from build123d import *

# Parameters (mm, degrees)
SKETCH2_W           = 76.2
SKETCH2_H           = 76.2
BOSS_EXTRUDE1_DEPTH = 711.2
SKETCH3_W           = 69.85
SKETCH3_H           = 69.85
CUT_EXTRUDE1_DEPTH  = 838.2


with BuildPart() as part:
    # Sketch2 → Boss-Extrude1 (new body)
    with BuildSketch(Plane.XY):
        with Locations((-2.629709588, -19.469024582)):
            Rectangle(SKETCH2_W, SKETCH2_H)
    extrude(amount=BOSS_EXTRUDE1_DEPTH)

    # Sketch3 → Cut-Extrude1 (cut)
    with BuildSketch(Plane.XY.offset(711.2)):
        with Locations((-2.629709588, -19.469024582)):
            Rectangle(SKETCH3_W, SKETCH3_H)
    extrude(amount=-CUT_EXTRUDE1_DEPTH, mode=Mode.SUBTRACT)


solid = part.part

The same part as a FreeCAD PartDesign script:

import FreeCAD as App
import Part
import Sketcher
Q = App.Units.Quantity

doc = App.newDocument("Part")
body = doc.addObject("PartDesign::Body", "Body")

# Sketch on XY plane
sketch1 = body.newObject("Sketcher::SketchObject", "Sketch")
sketch1.AttachmentSupport = (doc.getObject("XY_Plane"), [""])
sketch1.MapMode = "FlatFace"
sketch1.addGeometry([
    Part.LineSegment(App.Vector(-40.72971, 18.630975, 0), App.Vector(-40.72971, -57.569025, 0)),
    Part.LineSegment(App.Vector(-40.72971, -57.569025, 0), App.Vector(35.47029, -57.569025, 0)),
    Part.LineSegment(App.Vector(35.47029, -57.569025, 0), App.Vector(35.47029, 18.630975, 0)),
    Part.LineSegment(App.Vector(35.47029, 18.630975, 0), App.Vector(-40.72971, 18.630975, 0)),
], False)
sketch1.addConstraint([
    Sketcher.Constraint("Coincident", 0, 2, 1, 1),
    Sketcher.Constraint("Coincident", 1, 2, 2, 1),
    Sketcher.Constraint("Coincident", 2, 2, 3, 1),
    Sketcher.Constraint("Coincident", 3, 2, 0, 1),
    Sketcher.Constraint("Vertical", 0),
    Sketcher.Constraint("Horizontal", 1),
    Sketcher.Constraint("Vertical", 2),
    Sketcher.Constraint("Horizontal", 3),
    Sketcher.Constraint("Equal", 3, 0),
    Sketcher.Constraint("DistanceX", 1, 1, 1, 2, Q("3 in")),
    Sketcher.Constraint("DistanceX", 0, 2, -1, 1, Q("40.72971 mm")),
    Sketcher.Constraint("DistanceY", 0, 2, -1, 1, Q("57.569025 mm")),
])
pad1 = body.newObject("PartDesign::Pad", "Pad")
pad1.Profile = sketch1
pad1.Length = Q("28 in")

# Sketch on XY plane
sketch2 = body.newObject("Sketcher::SketchObject", "Sketch001")
sketch2.AttachmentSupport = (doc.getObject("XY_Plane"), [""])
sketch2.MapMode = "FlatFace"
sketch2.AttachmentOffset = App.Placement(App.Vector(0, 0, 28 * 25.4), App.Rotation())
sketch2.addGeometry([
    Part.LineSegment(App.Vector(-37.55471, 15.455975, 0), App.Vector(-37.55471, -54.394025, 0)),
    Part.LineSegment(App.Vector(-37.55471, -54.394025, 0), App.Vector(32.29529, -54.394025, 0)),
    Part.LineSegment(App.Vector(32.29529, -54.394025, 0), App.Vector(32.29529, 15.455975, 0)),
    Part.LineSegment(App.Vector(32.29529, 15.455975, 0), App.Vector(-37.55471, 15.455975, 0)),
], False)
sketch2.addConstraint([
    Sketcher.Constraint("Coincident", 0, 2, 1, 1),
    Sketcher.Constraint("Coincident", 1, 2, 2, 1),
    Sketcher.Constraint("Coincident", 2, 2, 3, 1),
    Sketcher.Constraint("Coincident", 3, 2, 0, 1),
    Sketcher.Constraint("Vertical", 0),
    Sketcher.Constraint("Horizontal", 1),
    Sketcher.Constraint("Vertical", 2),
    Sketcher.Constraint("Horizontal", 3),
    Sketcher.Constraint("Equal", 3, 0),
    Sketcher.Constraint("DistanceX", 1, 1, 1, 2, Q("2.75 in")),
    Sketcher.Constraint("DistanceX", 0, 2, -1, 1, Q("37.55471 mm")),
    Sketcher.Constraint("DistanceY", 0, 2, -1, 1, Q("54.394025 mm")),
])
pocket1 = body.newObject("PartDesign::Pocket", "Pocket")
pocket1.Profile = sketch2
pocket1.Length = Q("33 in")

doc.recompute()
